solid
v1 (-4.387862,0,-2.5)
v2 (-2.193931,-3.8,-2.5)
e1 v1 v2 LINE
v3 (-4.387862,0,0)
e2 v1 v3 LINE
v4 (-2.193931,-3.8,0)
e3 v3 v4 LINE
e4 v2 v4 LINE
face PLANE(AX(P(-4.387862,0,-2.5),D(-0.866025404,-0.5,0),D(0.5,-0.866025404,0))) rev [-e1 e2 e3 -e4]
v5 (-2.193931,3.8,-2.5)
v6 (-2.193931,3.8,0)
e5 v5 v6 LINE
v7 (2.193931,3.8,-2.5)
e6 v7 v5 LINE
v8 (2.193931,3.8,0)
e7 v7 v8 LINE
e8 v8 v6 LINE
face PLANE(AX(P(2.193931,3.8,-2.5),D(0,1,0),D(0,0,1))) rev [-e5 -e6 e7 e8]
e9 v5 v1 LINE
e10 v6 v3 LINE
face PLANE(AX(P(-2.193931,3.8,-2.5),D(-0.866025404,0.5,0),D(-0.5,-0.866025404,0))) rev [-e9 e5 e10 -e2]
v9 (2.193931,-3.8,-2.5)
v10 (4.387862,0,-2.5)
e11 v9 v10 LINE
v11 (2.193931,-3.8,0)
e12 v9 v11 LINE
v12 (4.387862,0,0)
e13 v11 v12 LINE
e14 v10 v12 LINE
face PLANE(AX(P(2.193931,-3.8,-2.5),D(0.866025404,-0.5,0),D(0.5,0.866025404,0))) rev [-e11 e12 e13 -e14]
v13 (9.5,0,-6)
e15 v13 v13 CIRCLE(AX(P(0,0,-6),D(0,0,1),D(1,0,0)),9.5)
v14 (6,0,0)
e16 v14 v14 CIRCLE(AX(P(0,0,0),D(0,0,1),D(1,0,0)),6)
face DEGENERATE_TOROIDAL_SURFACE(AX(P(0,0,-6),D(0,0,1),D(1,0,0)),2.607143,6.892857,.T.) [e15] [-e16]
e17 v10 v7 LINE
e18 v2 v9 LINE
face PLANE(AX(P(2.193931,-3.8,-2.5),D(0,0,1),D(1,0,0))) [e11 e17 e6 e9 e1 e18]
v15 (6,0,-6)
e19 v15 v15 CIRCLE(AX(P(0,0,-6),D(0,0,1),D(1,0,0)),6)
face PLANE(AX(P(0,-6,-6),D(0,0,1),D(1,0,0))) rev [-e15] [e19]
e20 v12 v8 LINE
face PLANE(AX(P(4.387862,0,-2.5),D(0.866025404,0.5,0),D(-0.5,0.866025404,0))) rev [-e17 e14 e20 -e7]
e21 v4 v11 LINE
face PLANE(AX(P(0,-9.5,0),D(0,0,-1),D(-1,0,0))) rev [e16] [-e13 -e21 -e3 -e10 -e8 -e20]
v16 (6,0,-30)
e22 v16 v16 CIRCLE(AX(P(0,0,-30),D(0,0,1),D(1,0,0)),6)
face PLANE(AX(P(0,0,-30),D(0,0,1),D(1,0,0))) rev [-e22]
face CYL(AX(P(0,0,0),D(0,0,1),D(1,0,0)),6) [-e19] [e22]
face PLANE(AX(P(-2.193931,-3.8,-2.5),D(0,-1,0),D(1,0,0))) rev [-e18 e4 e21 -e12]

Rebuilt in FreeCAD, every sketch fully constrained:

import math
import FreeCAD as App
import Part
import Sketcher
Q = App.Units.Quantity

doc = App.newDocument("Part")
params = doc.addObject("Spreadsheet::Sheet", "Params")
for row, (alias, value) in enumerate([
    ("sketch1_width", "6 mm"),
    ("sketch1_height", "30 mm"),
    ("sketch1_width2", "9.5 mm"),
    ("revolution_angle", "360 deg"),
    ("pocket1_length", "2.5 mm"),
    ("sketch3_height", "6 mm"),
    ("sketch3_width", "3.5 mm"),
    ("groove_angle", "360 deg"),
], start=1):
    params.set(f"A{row}", alias)
    params.set(f"B{row}", "=" + value)
    params.setAlias(f"B{row}", alias)

body = doc.addObject("PartDesign::Body", "Body")

sketch1 = body.newObject("Sketcher::SketchObject", "Sketch")
sketch1.AttachmentSupport = (doc.getObject("YZ_Plane"), [""])
sketch1.MapMode = "FlatFace"
sketch1.addGeometry(Part.LineSegment(App.Vector(9.5, -6, 0), App.Vector(9.5, 0, 0)), False)
sketch1.addGeometry(Part.LineSegment(App.Vector(9.5, 0, 0), App.Vector(0, 0, 0)), False)
sketch1.addGeometry(Part.LineSegment(App.Vector(0, 0, 0), App.Vector(0, -30, 0)), False)
sketch1.addGeometry(Part.LineSegment(App.Vector(0, -30, 0), App.Vector(6, -30, 0)), False)
sketch1.addGeometry(Part.LineSegment(App.Vector(6, -30, 0), App.Vector(6, -6, 0)), False)
sketch1.addGeometry(Part.LineSegment(App.Vector(6, -6, 0), App.Vector(9.5, -6, 0)), False)
sketch1.addConstraint(Sketcher.Constraint("Coincident", 0, 2, 1, 1))
sketch1.addConstraint(Sketcher.Constraint("Coincident", 1, 2, 2, 1))
sketch1.addConstraint(Sketcher.Constraint("Coincident", 2, 2, 3, 1))
sketch1.addConstraint(Sketcher.Constraint("Coincident", 3, 2, 4, 1))
sketch1.addConstraint(Sketcher.Constraint("Coincident", 4, 2, 5, 1))
sketch1.addConstraint(Sketcher.Constraint("Coincident", 5, 2, 0, 1))
sketch1.addConstraint(Sketcher.Constraint("Vertical", 0))
sketch1.addConstraint(Sketcher.Constraint("Horizontal", 1))
sketch1.addConstraint(Sketcher.Constraint("Vertical", 2))
sketch1.addConstraint(Sketcher.Constraint("Horizontal", 3))
sketch1.addConstraint(Sketcher.Constraint("Vertical", 4))
sketch1.addConstraint(Sketcher.Constraint("Horizontal", 5))
sketch1.addConstraint(Sketcher.Constraint("Coincident", 1, 2, -1, 1))
sketch1.addConstraint(Sketcher.Constraint("Equal", 3, 0))
sketch1.addConstraint(Sketcher.Constraint("DistanceX", 3, 1, 3, 2, Q("6 mm")))
sketch1.addConstraint(Sketcher.Constraint("DistanceY", 2, 2, 2, 1, Q("30 mm")))
sketch1.addConstraint(Sketcher.Constraint("DistanceX", 1, 2, 1, 1, Q("9.5 mm")))
sketch1.setExpression("Constraints[14]", "Params.sketch1_width")
sketch1.setExpression("Constraints[15]", "Params.sketch1_height")
sketch1.setExpression("Constraints[16]", "Params.sketch1_width2")
revolution = body.newObject("PartDesign::Revolution", "Revolution")
revolution.Profile = sketch1
revolution.ReferenceAxis = (sketch1, ["V_Axis"])
revolution.setExpression("Angle", "Params.revolution_angle")

sketch2 = body.newObject("Sketcher::SketchObject", "Sketch001")
sketch2.AttachmentSupport = (doc.getObject("XY_Plane"), [""])
sketch2.MapMode = "FlatFace"
sketch2.addGeometry(Part.LineSegment(App.Vector(2.2, -3.8, 0), App.Vector(4.4, 0, 0)), False)
sketch2.addGeometry(Part.LineSegment(App.Vector(4.4, 0, 0), App.Vector(2.2, 3.8, 0)), False)
sketch2.addGeometry(Part.LineSegment(App.Vector(2.2, 3.8, 0), App.Vector(-2.2, 3.8, 0)), False)
sketch2.addGeometry(Part.LineSegment(App.Vector(-2.2, 3.8, 0), App.Vector(-4.4, 0, 0)), False)
sketch2.addGeometry(Part.LineSegment(App.Vector(-4.4, 0, 0), App.Vector(-2.2, -3.8, 0)), False)
sketch2.addGeometry(Part.LineSegment(App.Vector(-2.2, -3.8, 0), App.Vector(2.2, -3.8, 0)), False)
sketch2.addConstraint(Sketcher.Constraint("Coincident", 0, 2, 1, 1))
sketch2.addConstraint(Sketcher.Constraint("Coincident", 1, 2, 2, 1))
sketch2.addConstraint(Sketcher.Constraint("Coincident", 2, 2, 3, 1))
sketch2.addConstraint(Sketcher.Constraint("Coincident", 3, 2, 4, 1))
sketch2.addConstraint(Sketcher.Constraint("Coincident", 4, 2, 5, 1))
sketch2.addConstraint(Sketcher.Constraint("Coincident", 5, 2, 0, 1))
sketch2.addConstraint(Sketcher.Constraint("Horizontal", 2))
sketch2.addConstraint(Sketcher.Constraint("Horizontal", 5))
sketch2.addConstraint(Sketcher.Constraint("Symmetric", 0, 2, 3, 2, -1, 1))
sketch2.addConstraint(Sketcher.Constraint("Symmetric", 1, 2, 4, 2, -1, 1))
sketch2.addConstraint(Sketcher.Constraint("PointOnObject", 0, 2, -1))
sketch2.addConstraint(Sketcher.Constraint("Parallel", 0, 3))
sketch2.addConstraint(Sketcher.Constraint("Vertical", 2, 2, 4, 2))
sketch2.addConstraint(Sketcher.Constraint("Angle", 0, Q("60 deg")))
sketch2.addConstraint(Sketcher.Constraint("DistanceY", -1, 1, 1, 2, Q("3.8 mm")))
sketch2.addConstraint(Sketcher.Constraint("DistanceX", 2, 2, 2, 1, Q("4.387862 mm")))
pocket1 = body.newObject("PartDesign::Pocket", "Pocket")
pocket1.Profile = sketch2
pocket1.setExpression("Length", "Params.pocket1_length")

sketch3 = body.newObject("Sketcher::SketchObject", "Sketch002")
sketch3.AttachmentSupport = (doc.getObject("YZ_Plane"), [""])
sketch3.MapMode = "FlatFace"
sketch3.addGeometry(Part.LineSegment(App.Vector(9.5, -6, 0), App.Vector(9.5, 0, 0)), False)
sketch3.addGeometry(Part.LineSegment(App.Vector(9.5, 0, 0), App.Vector(6, 0, 0)), False)
sketch3.addGeometry(Part.ArcOfCircle(Part.Circle(App.Vector(2.6, -6, 0), App.Vector(0, 0, 1), 6.9), math.radians(0), math.radians(61)), False)
sketch3.addConstraint(Sketcher.Constraint("Coincident", 0, 2, 1, 1))
sketch3.addConstraint(Sketcher.Constraint("Coincident", 1, 2, 2, 2))
sketch3.addConstraint(Sketcher.Constraint("Tangent", 2, 1, 0, 1))
sketch3.addConstraint(Sketcher.Constraint("Vertical", 0))
sketch3.addConstraint(Sketcher.Constraint("Horizontal", 1))
sketch3.addConstraint(Sketcher.Constraint("PointOnObject", 0, 2, -1))
sketch3.addConstraint(Sketcher.Constraint("DistanceY", 0, 1, 0, 2, Q("6 mm")))
sketch3.addConstraint(Sketcher.Constraint("DistanceX", 1, 2, 1, 1, Q("3.5 mm")))
sketch3.addConstraint(Sketcher.Constraint("DistanceX", -1, 1, 1, 2, Q("6 mm")))
sketch3.setExpression("Constraints[6]", "Params.sketch3_height")
sketch3.setExpression("Constraints[7]", "Params.sketch3_width")
groove = body.newObject("PartDesign::Groove", "Groove")
groove.Profile = sketch3
groove.ReferenceAxis = (sketch3, ["V_Axis"])
groove.setExpression("Angle", "Params.groove_angle")

doc.recompute()
